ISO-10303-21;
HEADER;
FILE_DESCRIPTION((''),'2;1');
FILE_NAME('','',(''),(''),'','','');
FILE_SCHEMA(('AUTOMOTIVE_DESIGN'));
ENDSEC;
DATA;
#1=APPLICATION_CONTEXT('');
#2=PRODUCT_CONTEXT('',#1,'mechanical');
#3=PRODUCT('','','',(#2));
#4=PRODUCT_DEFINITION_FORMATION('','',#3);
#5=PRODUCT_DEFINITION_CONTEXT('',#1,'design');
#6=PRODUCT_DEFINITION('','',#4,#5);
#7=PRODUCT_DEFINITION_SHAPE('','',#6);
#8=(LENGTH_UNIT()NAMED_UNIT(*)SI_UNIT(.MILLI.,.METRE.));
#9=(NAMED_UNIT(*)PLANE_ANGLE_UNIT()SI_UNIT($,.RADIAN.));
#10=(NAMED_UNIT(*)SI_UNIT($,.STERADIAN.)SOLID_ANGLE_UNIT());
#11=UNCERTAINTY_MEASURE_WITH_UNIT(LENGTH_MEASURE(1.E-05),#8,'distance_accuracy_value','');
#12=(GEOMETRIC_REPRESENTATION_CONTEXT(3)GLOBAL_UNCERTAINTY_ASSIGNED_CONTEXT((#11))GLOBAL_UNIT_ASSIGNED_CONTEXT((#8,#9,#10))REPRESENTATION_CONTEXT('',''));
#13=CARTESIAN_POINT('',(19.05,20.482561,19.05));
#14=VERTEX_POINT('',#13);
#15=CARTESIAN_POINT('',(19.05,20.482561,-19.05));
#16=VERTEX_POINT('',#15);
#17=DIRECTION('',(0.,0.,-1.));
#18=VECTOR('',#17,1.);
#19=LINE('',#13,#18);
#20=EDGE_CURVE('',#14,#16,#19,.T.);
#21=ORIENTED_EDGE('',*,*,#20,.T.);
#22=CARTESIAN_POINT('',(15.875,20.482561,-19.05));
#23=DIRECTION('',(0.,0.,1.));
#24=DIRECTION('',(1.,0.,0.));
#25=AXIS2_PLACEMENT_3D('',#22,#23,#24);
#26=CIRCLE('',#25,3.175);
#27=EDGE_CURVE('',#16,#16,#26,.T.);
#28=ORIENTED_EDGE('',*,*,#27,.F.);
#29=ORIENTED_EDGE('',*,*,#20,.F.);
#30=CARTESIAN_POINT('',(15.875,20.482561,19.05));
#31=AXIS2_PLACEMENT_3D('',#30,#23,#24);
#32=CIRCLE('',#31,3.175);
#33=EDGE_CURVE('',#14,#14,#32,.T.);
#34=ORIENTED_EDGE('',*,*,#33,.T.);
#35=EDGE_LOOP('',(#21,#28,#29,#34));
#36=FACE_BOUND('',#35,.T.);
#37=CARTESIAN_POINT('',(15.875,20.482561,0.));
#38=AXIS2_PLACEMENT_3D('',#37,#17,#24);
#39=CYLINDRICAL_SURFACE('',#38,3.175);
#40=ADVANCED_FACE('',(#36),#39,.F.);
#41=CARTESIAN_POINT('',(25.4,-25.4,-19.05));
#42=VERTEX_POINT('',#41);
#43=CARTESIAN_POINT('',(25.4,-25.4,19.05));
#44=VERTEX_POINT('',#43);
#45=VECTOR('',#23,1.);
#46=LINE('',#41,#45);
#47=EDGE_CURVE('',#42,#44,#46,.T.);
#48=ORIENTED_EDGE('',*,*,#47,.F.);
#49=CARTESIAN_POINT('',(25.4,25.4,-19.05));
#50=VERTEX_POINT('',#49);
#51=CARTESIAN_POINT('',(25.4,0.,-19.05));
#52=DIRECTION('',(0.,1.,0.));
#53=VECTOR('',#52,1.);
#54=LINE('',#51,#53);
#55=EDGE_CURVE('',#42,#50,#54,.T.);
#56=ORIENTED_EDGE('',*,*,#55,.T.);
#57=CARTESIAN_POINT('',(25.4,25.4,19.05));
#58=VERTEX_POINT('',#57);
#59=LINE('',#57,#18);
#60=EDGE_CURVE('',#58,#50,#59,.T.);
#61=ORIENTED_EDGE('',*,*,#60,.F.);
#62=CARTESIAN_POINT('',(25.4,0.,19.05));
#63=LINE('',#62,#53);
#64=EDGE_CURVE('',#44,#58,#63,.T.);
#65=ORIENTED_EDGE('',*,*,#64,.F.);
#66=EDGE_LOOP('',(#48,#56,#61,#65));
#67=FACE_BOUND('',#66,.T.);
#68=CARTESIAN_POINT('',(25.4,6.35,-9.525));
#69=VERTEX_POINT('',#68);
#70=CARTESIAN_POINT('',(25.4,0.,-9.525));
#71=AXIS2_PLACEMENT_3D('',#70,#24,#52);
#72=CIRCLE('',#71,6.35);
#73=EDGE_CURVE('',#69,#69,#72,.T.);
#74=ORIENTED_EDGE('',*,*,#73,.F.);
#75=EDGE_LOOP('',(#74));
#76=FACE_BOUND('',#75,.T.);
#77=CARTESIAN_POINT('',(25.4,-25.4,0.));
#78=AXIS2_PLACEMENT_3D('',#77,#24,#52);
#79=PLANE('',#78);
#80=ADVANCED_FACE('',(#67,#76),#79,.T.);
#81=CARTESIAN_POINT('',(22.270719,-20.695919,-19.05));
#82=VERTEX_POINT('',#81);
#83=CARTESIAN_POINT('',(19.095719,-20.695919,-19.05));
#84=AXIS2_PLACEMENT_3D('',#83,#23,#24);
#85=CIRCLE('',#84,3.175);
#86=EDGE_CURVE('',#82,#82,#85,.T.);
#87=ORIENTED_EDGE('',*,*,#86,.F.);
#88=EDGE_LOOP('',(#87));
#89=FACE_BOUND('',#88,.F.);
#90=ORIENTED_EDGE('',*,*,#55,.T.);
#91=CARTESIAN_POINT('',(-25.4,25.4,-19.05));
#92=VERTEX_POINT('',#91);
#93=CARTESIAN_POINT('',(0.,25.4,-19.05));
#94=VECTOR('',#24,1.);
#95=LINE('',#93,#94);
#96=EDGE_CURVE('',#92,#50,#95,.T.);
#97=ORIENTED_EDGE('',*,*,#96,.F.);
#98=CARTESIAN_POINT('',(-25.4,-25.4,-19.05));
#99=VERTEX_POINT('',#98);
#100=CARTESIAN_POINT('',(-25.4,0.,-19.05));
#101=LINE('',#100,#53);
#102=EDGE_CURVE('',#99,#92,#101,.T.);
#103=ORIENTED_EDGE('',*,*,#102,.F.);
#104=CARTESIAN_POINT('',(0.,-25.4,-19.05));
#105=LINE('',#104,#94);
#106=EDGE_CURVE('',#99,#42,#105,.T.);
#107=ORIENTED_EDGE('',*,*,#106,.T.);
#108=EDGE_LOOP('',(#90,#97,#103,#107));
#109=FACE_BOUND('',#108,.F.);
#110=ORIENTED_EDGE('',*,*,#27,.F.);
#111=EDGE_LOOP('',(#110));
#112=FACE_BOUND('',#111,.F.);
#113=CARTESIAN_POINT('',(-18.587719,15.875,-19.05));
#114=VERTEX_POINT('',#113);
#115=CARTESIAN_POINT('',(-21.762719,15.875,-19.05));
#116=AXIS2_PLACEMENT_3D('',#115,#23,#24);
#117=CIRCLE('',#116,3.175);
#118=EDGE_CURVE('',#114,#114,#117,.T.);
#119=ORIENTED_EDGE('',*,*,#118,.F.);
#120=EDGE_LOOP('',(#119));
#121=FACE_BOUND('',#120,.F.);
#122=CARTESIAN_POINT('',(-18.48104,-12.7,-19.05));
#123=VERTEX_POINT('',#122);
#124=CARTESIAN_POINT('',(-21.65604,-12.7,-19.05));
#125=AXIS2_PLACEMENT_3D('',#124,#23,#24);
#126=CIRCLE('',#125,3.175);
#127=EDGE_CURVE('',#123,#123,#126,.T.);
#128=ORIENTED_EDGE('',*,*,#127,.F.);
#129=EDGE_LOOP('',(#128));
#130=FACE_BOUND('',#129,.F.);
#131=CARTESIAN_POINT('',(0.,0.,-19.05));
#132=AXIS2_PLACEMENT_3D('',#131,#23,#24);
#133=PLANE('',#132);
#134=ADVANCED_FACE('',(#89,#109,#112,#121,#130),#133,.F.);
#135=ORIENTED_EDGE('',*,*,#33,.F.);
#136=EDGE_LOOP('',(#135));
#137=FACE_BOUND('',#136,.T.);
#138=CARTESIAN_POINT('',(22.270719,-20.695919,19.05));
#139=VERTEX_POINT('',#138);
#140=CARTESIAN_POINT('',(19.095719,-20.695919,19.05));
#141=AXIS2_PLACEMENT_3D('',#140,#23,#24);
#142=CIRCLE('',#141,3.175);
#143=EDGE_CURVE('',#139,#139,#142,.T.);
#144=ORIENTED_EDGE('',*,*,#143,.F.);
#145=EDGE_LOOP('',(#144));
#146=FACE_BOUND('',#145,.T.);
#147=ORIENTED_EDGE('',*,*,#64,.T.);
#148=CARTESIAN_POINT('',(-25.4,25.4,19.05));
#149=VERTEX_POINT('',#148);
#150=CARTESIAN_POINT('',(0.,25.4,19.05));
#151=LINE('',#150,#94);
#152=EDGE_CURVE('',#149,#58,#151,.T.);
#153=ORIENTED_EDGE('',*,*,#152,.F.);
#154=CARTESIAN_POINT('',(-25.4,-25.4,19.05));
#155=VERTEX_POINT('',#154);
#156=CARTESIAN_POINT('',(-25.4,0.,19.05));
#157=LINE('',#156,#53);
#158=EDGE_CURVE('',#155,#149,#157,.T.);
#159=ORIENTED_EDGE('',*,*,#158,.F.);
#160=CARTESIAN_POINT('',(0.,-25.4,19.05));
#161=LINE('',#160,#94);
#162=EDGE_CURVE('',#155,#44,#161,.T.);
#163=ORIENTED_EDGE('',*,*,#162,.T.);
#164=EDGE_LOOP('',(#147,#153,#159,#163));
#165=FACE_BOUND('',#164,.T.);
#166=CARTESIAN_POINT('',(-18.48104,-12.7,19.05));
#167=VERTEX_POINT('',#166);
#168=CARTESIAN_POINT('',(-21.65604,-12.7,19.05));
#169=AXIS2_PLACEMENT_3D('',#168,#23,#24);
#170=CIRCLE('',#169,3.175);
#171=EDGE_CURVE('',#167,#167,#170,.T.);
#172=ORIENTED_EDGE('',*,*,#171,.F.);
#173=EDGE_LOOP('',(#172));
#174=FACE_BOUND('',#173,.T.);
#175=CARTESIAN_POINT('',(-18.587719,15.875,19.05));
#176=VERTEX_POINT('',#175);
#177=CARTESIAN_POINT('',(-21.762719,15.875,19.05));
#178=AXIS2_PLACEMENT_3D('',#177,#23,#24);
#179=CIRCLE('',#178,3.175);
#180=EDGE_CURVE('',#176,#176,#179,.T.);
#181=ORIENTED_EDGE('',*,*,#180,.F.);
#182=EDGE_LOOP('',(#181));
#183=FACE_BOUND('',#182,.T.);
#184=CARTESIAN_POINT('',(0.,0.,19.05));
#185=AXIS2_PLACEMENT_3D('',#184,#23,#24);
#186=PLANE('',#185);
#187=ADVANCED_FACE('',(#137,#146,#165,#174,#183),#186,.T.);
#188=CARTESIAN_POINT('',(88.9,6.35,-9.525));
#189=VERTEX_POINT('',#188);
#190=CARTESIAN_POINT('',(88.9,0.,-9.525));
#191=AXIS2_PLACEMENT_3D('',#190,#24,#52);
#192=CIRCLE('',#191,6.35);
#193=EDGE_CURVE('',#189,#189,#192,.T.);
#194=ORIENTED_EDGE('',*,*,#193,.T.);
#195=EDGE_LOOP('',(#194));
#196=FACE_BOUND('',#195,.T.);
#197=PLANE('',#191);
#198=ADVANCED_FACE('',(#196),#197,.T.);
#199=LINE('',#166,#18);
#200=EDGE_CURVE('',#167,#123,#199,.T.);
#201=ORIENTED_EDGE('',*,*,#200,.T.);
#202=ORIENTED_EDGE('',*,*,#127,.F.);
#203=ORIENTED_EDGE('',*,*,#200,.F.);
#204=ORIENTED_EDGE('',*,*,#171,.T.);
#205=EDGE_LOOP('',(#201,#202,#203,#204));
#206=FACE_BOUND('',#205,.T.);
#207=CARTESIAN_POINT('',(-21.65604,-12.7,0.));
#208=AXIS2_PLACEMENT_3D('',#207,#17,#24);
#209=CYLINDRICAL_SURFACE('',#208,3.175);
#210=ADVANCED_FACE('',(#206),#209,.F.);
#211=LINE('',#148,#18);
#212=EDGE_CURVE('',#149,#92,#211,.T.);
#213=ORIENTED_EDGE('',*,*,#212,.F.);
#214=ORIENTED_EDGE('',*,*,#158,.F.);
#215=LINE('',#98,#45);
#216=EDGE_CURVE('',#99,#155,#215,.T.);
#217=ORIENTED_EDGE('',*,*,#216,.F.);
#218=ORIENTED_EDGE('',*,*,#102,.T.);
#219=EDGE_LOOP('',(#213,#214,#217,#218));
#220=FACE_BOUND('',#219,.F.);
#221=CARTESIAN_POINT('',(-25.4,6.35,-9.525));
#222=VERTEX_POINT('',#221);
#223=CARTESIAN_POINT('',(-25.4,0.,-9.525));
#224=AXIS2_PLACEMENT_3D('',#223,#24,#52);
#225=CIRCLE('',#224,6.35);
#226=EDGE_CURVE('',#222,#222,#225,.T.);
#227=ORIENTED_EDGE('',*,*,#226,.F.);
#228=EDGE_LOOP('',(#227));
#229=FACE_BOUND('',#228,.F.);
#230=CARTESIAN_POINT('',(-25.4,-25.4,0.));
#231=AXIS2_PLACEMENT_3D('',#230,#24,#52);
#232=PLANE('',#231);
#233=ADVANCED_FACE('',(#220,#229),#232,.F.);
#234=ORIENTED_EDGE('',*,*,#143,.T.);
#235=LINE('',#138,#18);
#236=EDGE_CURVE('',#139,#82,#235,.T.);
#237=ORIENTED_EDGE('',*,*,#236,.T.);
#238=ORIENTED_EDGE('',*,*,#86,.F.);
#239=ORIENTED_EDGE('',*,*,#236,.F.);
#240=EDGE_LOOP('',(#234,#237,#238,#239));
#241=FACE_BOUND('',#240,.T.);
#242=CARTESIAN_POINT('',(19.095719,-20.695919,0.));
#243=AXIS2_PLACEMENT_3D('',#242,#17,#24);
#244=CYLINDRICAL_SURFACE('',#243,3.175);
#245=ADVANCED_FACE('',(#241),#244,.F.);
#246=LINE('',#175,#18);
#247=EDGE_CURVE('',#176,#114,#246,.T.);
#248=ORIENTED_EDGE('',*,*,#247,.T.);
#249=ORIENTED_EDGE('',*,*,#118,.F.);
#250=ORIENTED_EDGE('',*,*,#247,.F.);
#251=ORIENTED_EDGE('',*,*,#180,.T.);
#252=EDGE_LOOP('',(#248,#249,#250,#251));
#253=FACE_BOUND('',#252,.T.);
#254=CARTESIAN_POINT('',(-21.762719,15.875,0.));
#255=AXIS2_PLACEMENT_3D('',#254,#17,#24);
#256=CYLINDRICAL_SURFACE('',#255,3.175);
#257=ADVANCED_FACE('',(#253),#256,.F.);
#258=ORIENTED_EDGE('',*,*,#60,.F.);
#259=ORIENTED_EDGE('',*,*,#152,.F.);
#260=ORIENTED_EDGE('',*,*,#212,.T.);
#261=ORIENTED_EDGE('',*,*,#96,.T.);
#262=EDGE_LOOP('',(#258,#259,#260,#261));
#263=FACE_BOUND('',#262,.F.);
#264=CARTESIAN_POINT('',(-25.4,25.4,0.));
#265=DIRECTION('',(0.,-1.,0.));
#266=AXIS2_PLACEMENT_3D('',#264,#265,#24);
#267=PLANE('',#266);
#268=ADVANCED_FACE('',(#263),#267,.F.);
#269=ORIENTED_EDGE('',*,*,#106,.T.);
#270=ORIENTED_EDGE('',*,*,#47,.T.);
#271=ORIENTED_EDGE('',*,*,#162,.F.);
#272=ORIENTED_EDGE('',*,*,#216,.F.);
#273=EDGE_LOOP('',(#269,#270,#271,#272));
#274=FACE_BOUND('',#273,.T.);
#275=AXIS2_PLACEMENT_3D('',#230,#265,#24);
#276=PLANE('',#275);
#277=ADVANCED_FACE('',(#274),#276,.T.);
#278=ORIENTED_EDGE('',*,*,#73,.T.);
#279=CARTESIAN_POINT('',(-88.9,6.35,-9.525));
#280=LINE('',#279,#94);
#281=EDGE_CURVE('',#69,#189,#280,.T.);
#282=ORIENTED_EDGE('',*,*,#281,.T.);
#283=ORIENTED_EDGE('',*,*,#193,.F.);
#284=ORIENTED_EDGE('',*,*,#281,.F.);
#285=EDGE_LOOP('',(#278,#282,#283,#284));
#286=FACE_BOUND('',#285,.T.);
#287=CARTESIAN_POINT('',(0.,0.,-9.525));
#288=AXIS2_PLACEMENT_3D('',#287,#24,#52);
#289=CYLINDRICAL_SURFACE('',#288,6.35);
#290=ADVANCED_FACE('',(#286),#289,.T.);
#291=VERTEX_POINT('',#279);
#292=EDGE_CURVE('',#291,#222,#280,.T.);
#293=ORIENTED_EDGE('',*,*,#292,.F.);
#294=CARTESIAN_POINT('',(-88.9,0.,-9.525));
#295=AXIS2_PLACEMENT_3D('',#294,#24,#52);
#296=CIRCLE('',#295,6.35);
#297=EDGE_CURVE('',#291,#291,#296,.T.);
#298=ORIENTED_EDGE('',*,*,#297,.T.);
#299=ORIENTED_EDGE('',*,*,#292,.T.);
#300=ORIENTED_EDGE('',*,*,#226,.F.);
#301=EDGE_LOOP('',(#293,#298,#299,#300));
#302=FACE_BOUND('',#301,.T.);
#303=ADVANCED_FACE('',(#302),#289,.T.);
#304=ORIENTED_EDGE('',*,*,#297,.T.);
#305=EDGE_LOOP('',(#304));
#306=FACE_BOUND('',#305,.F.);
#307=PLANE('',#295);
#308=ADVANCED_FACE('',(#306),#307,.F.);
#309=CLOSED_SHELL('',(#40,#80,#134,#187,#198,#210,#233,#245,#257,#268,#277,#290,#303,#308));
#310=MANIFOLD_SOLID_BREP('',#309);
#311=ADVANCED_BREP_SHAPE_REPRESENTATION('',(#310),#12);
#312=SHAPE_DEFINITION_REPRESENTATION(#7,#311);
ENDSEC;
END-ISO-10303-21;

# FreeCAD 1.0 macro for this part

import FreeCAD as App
import Part
import Sketcher
Q = App.Units.Quantity


def add_polygon(sketch, points):
    """Adds a closed chain of lines whose ends are joined by coincident constraints."""
    first, n = sketch.GeometryCount, len(points)
    for a, b in zip(points, points[1:] + points[:1]):
        sketch.addGeometry(Part.LineSegment(App.Vector(*a, 0), App.Vector(*b, 0)), False)
    for i in range(n):
        sketch.addConstraint(Sketcher.Constraint("Coincident", first + i, 2, first + (i + 1) % n, 1))

doc = App.newDocument("Part")
body = doc.addObject("PartDesign::Body", "Body")

sketch1 = body.newObject("Sketcher::SketchObject", "Sketch")
sketch1.AttachmentSupport = (doc.getObject("XY_Plane"), [""])
sketch1.MapMode = "FlatFace"
add_polygon(sketch1, [(-25.4, 25.4), (-25.4, -25.4), (25.4, -25.4), (25.4, 25.4)])
sketch1.addGeometry(Part.Circle(App.Vector(-21.65604, -12.7, 0), App.Vector(0, 0, 1), 3.175), False)
sketch1.addGeometry(Part.Circle(App.Vector(19.095719, -20.695919, 0), App.Vector(0, 0, 1), 3.175), False)
sketch1.addGeometry(Part.Circle(App.Vector(-21.762719, 15.875, 0), App.Vector(0, 0, 1), 3.175), False)
sketch1.addGeometry(Part.Circle(App.Vector(15.875, 20.482561, 0), App.Vector(0, 0, 1), 3.175), False)
sketch1.addConstraint([
    Sketcher.Constraint("Vertical", 0),
    Sketcher.Constraint("Horizontal", 1),
    Sketcher.Constraint("Vertical", 2),
    Sketcher.Constraint("Horizontal", 3),
    Sketcher.Constraint("Equal", 4, 5),
    Sketcher.Constraint("Equal", 5, 6),
    Sketcher.Constraint("Equal", 6, 7),
    Sketcher.Constraint("Symmetric", 0, 2, 2, 2, -1, 1),
    Sketcher.Constraint("Equal", 3, 0),
    Sketcher.Constraint("Diameter", 4, Q("0.25 in")),
    Sketcher.Constraint("DistanceX", 1, 1, 1, 2, Q("2 in")),
    Sketcher.Constraint("DistanceY", 4, 3, -1, 1, Q("0.5 in")),
    Sketcher.Constraint("DistanceY", -1, 1, 6, 3, Q("0.625 in")),
    Sketcher.Constraint("DistanceX", -1, 1, 7, 3, Q("0.625 in")),
    Sketcher.Constraint("DistanceX", 4, 3, -1, 1, Q("0.8526 in")),
    Sketcher.Constraint("DistanceX", -1, 1, 5, 3, Q("0.7518 in")),
    Sketcher.Constraint("DistanceY", 5, 3, -1, 1, Q("0.8148 in")),
    Sketcher.Constraint("DistanceX", 6, 3, -1, 1, Q("0.8568 in")),
    Sketcher.Constraint("DistanceY", -1, 1, 7, 3, Q("0.8064 in")),
])
pad1 = body.newObject("PartDesign::Pad", "Pad")
pad1.Profile = sketch1
pad1.Length = Q("1.5 in")
pad1.Midplane = True

sketch2 = body.newObject("Sketcher::SketchObject", "Sketch001")
sketch2.AttachmentSupport = (doc.getObject("YZ_Plane"), [""])
sketch2.MapMode = "FlatFace"
sketch2.addGeometry(Part.Circle(App.Vector(0, -9.525, 0), App.Vector(0, 0, 1), 6.35), False)
sketch2.addConstraint([
    Sketcher.Constraint("PointOnObject", 0, 3, -2),
    Sketcher.Constraint("Diameter", 0, Q("0.5 in")),
    Sketcher.Constraint("DistanceY", 0, 3, -1, 1, Q("0.375 in")),
])
pad2 = body.newObject("PartDesign::Pad", "Pad001")
pad2.Profile = sketch2
pad2.Length = Q("7 in")
pad2.Midplane = True

doc.recompute()
